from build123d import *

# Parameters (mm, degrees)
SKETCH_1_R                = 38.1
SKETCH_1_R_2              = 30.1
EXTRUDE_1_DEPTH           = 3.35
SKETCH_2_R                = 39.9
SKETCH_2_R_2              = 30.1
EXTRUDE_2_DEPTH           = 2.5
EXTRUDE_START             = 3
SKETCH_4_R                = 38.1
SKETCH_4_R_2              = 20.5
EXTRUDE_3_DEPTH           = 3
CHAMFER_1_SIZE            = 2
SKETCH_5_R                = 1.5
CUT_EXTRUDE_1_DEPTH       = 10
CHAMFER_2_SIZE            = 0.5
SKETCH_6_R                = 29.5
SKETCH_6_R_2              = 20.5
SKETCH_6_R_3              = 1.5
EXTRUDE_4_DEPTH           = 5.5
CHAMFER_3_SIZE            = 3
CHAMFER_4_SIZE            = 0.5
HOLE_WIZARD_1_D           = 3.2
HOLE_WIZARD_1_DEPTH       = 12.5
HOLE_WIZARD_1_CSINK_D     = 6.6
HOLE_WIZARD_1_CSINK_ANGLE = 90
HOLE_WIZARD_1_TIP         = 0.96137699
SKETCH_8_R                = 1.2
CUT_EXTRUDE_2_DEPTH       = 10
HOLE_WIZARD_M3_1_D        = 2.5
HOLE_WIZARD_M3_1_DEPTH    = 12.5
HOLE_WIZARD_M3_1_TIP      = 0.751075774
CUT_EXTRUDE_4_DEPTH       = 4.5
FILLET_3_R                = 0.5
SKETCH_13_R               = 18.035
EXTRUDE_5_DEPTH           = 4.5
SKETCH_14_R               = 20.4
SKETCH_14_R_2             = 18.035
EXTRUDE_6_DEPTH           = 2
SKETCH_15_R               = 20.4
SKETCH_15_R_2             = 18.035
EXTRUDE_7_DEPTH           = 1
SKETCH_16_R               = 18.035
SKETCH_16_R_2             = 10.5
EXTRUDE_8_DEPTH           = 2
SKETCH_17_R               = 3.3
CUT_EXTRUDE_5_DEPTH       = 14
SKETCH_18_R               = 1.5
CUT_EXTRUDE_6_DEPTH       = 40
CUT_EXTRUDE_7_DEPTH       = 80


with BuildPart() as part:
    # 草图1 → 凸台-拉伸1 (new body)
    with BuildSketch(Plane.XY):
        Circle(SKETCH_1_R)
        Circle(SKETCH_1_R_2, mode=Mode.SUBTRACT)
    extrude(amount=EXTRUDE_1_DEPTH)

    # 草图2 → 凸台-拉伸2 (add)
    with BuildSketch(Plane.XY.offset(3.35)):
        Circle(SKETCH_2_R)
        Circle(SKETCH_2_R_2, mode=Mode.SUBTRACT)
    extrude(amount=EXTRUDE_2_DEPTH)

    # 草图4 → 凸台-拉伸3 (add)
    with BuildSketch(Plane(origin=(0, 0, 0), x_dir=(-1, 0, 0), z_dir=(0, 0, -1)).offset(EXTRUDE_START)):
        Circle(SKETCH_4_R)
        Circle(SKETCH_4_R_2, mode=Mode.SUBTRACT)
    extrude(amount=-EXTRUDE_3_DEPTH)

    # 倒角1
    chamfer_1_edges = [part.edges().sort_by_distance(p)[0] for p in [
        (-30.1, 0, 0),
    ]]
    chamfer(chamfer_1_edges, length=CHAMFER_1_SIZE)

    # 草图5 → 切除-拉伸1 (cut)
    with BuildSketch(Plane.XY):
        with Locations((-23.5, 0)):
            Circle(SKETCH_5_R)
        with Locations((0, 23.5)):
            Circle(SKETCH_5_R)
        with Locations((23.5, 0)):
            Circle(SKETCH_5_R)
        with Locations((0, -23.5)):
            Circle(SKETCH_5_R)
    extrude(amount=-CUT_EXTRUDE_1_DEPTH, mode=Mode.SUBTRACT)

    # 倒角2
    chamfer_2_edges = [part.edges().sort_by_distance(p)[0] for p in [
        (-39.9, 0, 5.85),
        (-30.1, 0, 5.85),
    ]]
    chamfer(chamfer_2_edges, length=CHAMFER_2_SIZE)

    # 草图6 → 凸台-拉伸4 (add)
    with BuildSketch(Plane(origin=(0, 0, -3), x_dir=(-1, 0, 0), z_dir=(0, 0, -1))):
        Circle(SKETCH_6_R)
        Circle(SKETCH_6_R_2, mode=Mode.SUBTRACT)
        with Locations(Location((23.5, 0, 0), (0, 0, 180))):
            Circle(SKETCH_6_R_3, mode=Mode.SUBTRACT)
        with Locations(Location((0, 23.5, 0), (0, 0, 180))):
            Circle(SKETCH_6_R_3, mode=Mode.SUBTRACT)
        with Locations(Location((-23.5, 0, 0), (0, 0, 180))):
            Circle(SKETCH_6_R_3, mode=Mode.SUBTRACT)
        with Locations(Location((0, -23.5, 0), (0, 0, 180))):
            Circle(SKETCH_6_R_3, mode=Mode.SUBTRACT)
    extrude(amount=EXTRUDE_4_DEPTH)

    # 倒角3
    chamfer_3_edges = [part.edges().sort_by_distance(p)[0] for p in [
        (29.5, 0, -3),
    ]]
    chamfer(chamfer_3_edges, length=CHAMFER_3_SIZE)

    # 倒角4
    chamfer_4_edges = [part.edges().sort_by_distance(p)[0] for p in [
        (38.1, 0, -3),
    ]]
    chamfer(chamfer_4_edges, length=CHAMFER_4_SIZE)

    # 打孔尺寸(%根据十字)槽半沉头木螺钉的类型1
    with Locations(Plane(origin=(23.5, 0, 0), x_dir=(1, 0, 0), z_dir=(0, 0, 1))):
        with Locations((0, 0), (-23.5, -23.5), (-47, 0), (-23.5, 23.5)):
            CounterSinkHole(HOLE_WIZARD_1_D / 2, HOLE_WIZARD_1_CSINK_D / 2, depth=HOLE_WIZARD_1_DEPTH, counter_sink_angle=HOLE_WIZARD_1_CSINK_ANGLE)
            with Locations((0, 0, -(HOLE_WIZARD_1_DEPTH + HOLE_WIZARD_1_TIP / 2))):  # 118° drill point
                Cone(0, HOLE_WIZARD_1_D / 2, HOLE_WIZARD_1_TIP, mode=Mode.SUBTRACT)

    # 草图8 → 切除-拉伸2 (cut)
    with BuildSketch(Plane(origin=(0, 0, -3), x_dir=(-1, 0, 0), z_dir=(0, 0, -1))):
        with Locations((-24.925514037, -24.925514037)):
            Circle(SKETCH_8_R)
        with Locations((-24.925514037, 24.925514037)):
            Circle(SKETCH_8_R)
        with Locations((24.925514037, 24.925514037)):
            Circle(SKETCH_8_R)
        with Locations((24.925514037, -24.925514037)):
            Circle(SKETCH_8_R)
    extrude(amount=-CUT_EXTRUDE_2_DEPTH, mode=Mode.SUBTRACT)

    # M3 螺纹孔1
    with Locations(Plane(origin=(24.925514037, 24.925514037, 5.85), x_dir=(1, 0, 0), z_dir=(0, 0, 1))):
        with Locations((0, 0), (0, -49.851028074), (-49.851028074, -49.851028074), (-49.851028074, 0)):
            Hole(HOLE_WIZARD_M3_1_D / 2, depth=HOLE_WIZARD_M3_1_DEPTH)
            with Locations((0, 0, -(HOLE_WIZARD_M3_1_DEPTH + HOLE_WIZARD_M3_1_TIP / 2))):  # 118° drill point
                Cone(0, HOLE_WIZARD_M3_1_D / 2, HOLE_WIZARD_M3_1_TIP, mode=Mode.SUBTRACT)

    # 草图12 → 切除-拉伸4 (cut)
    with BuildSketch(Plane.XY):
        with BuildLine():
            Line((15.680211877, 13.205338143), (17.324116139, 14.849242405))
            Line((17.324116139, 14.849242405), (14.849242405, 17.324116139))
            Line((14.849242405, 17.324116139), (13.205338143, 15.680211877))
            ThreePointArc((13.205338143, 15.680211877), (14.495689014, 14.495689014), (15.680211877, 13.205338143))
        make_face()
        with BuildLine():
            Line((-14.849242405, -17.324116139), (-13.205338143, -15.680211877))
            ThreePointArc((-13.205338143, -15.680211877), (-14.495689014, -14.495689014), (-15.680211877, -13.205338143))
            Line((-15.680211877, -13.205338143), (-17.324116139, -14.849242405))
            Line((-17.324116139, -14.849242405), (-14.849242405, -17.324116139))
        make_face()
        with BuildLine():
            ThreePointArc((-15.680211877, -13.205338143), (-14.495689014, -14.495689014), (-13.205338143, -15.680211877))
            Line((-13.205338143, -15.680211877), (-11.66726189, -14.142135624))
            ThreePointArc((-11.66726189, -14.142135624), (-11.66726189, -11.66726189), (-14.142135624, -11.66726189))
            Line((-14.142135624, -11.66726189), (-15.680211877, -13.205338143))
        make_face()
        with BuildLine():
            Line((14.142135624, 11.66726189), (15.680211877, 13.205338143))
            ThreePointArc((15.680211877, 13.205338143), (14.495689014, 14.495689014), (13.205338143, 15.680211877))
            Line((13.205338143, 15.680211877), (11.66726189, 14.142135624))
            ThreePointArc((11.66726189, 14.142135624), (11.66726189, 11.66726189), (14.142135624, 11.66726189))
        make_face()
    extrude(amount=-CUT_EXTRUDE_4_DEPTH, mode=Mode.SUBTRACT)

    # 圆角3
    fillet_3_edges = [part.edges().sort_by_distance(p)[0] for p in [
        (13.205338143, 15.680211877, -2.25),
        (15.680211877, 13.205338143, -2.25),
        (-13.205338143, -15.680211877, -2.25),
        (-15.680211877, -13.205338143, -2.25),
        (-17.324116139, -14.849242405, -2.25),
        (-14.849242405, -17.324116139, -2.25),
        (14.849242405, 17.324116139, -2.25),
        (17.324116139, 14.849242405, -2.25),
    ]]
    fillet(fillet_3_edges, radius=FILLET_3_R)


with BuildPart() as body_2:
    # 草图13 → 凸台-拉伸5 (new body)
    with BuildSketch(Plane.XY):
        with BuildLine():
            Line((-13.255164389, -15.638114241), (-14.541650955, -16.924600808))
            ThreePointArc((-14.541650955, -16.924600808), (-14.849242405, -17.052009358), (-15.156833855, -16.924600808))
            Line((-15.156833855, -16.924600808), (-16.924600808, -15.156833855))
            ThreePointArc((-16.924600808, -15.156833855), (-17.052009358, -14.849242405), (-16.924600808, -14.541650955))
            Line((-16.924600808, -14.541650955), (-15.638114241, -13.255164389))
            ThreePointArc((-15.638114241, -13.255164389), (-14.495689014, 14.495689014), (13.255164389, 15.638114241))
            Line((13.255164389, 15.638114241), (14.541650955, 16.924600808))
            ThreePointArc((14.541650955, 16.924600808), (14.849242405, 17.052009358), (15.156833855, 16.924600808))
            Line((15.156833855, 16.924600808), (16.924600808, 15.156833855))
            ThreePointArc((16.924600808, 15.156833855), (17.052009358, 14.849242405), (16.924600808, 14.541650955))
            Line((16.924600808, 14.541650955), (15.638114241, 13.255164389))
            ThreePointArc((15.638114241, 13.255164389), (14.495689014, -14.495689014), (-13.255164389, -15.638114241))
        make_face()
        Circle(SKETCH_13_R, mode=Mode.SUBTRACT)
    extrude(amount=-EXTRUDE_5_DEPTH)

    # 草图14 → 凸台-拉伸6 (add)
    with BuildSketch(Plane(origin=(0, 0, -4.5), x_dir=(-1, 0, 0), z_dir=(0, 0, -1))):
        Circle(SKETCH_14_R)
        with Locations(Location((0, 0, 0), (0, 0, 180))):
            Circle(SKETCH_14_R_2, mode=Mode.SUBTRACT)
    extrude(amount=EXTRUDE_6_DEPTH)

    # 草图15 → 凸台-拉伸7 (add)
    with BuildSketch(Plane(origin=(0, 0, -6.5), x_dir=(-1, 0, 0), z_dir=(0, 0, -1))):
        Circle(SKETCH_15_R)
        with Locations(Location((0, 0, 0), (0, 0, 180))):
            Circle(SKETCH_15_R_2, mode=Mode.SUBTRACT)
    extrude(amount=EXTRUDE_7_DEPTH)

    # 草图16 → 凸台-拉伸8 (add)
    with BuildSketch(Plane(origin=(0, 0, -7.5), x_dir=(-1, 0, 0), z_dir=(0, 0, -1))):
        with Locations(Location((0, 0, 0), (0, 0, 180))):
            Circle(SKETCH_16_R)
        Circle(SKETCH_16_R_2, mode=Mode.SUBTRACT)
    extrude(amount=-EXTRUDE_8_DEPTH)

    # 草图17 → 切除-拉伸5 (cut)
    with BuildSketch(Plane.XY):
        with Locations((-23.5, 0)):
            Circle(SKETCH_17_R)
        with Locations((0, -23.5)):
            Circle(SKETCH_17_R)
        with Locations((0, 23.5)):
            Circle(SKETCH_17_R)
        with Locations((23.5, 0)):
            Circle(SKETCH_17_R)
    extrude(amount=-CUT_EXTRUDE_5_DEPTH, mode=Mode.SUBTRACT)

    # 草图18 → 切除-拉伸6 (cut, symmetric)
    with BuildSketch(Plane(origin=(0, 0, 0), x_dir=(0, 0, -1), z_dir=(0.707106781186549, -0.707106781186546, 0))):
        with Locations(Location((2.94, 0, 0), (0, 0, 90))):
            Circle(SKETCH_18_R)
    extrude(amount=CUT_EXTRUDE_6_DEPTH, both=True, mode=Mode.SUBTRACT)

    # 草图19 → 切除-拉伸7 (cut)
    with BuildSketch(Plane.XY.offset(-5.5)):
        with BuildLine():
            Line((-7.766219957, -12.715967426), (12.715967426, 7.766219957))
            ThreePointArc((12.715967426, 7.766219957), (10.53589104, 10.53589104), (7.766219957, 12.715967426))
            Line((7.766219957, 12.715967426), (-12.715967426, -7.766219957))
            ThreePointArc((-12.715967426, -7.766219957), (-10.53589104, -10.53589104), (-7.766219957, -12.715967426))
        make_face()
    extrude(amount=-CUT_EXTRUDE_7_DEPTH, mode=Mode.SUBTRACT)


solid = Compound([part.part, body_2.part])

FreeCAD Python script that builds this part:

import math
import FreeCAD as App
import Part
import Sketcher
from FreeCAD import Vector
Q = App.Units.Quantity


def edges_at(feature, points):
    """Names of the edges that pass closest to the given points."""
    edges = feature.Shape.Edges
    near = lambda p: min(range(len(edges)), key=lambda i: edges[i].distToShape(Part.Vertex(*p))[0])
    return sorted({f"Edge{near(p) + 1}" for p in points})

doc = App.newDocument("Part")
params = doc.addObject("Spreadsheet::Sheet", "Params")
for row, (alias, value) in enumerate([
    ("sketch1_diameter", "76.2 mm"),
    ("sketch1_diameter2", "60.2 mm"),
    ("pad1_length", "3.35 mm"),
    ("sketch2_diameter", "79.8 mm"),
    ("sketch2_diameter2", "60.2 mm"),
    ("pad2_length", "2.5 mm"),
    ("sketch3_diameter", "41 mm"),
    ("sketch3_diameter2", "76.2 mm"),
    ("pad3_length", "3 mm"),
    ("chamfer_size", "2 mm"),
    ("sketch4_diameter", "3 mm"),
    ("pocket1_length", "10 mm"),
    ("chamfer2_size", "0.5 mm"),
    ("sketch5_diameter", "59 mm"),
    ("sketch5_diameter2", "3 mm"),
    ("sketch5_diameter3", "41 mm"),
    ("pad4_length", "5.5 mm"),
    ("chamfer3_size", "3 mm"),
    ("chamfer4_size", "0.5 mm"),
    ("sketch6_diameter", "3.2 mm"),
    ("hole_diameter", "3.2 mm"),
    ("hole_depth", "12.5 mm"),
    ("hole_csink_diameter", "6.6 mm"),
    ("sketch7_diameter", "2.4 mm"),
    ("pocket2_length", "10 mm"),
    ("sketch8_diameter", "2.5 mm"),
    ("hole2_diameter", "2.5 mm"),
    ("hole2_depth", "12.5 mm"),
    ("sketch9_radius", "1.75 mm"),
    ("sketch9_length", "4.5 mm"),
    ("pocket3_length", "4.5 mm"),
    ("fillet_radius", "0.5 mm"),
    ("sketch10_radius", "20.5 mm"),
    ("sketch10_diameter", "36.07 mm"),
    ("sketch10_length", "2.5 mm"),
    ("pad5_length", "4.5 mm"),
    ("sketch11_diameter", "40.8 mm"),
    ("sketch11_diameter2", "36.07 mm"),
    ("pad6_length", "2 mm"),
    ("sketch12_diameter", "40.8 mm"),
    ("sketch12_diameter2", "36.07 mm"),
    ("pad7_length", "1 mm"),
    ("sketch13_diameter", "21 mm"),
    ("sketch13_diameter2", "36.07 mm"),
    ("pad8_length", "2 mm"),
    ("sketch14_diameter", "6.6 mm"),
    ("pocket4_length", "14 mm"),
    ("sketch15_diameter", "3 mm"),
    ("pocket5_length", "80 mm"),
    ("sketch16_radius", "14.9 mm"),
    ("pocket6_length", "80 mm"),
], start=1):
    params.set(f"A{row}", alias)
    params.set(f"B{row}", "=" + value)
    params.setAlias(f"B{row}", alias)

body = doc.addObject("PartDesign::Body", "Body")

# Sketch on XY plane
sketch1 = doc.addObject("Sketcher::SketchObject", "Sketch")
body.addObject(sketch1)
sketch1.AttachmentSupport = (doc.XY_Plane, [""])
sketch1.MapMode = "FlatFace"
sketch1.addGeometry(Part.Circle(Vector(0, 0, 0), Vector(0, 0, 1), 38), False)
sketch1.addGeometry(Part.Circle(Vector(0, 0, 0), Vector(0, 0, 1), 30), False)
sketch1.addConstraint(Sketcher.Constraint("Coincident", 0, 3, -1, 1))
sketch1.addConstraint(Sketcher.Constraint("Coincident", 1, 3, -1, 1))
sketch1.addConstraint(Sketcher.Constraint("Diameter", 0, Q("76.2 mm")))
sketch1.addConstraint(Sketcher.Constraint("Diameter", 1, Q("60.2 mm")))
sketch1.setExpression("Constraints[2]", "Params.sketch1_diameter")
sketch1.setExpression("Constraints[3]", "Params.sketch1_diameter2")
pad1 = doc.addObject("PartDesign::Pad", "Pad")
body.addObject(pad1)
pad1.Profile = sketch1
pad1.setExpression("Length", "Params.pad1_length")

# Sketch on XY plane
sketch2 = doc.addObject("Sketcher::SketchObject", "Sketch001")
body.addObject(sketch2)
sketch2.AttachmentSupport = (doc.XY_Plane, [""])
sketch2.MapMode = "FlatFace"
sketch2.AttachmentOffset = App.Placement(Vector(0, 0, 3.35), App.Rotation())
sketch2.addGeometry(Part.Circle(Vector(0, 0, 0), Vector(0, 0, 1), 40), False)
sketch2.addGeometry(Part.Circle(Vector(0, 0, 0), Vector(0, 0, 1), 30), False)
sketch2.addConstraint(Sketcher.Constraint("Coincident", 0, 3, -1, 1))
sketch2.addConstraint(Sketcher.Constraint("Coincident", 1, 3, -1, 1))
sketch2.addConstraint(Sketcher.Constraint("Diameter", 0, Q("79.8 mm")))
sketch2.addConstraint(Sketcher.Constraint("Diameter", 1, Q("60.2 mm")))
sketch2.setExpression("Constraints[2]", "Params.sketch2_diameter")
sketch2.setExpression("Constraints[3]", "Params.sketch2_diameter2")
pad2 = doc.addObject("PartDesign::Pad", "Pad001")
body.addObject(pad2)
pad2.Profile = sketch2
pad2.setExpression("Length", "Params.pad2_length")

# Sketch on XY plane
sketch3 = doc.addObject("Sketcher::SketchObject", "Sketch002")
body.addObject(sketch3)
sketch3.AttachmentSupport = (doc.XY_Plane, [""])
sketch3.MapMode = "FlatFace"
sketch3.AttachmentOffset = App.Placement(Vector(0, 0, -3), App.Rotation())
sketch3.addGeometry(Part.Circle(Vector(0, 0, 0), Vector(0, 0, 1), 38), False)
sketch3.addGeometry(Part.Circle(Vector(0, 0, 0), Vector(0, 0, 1), 20), False)
sketch3.addConstraint(Sketcher.Constraint("Coincident", 0, 3, -1, 1))
sketch3.addConstraint(Sketcher.Constraint("Coincident", 1, 3, -1, 1))
sketch3.addConstraint(Sketcher.Constraint("Diameter", 1, Q("41 mm")))
sketch3.addConstraint(Sketcher.Constraint("Diameter", 0, Q("76.2 mm")))
sketch3.setExpression("Constraints[2]", "Params.sketch3_diameter")
sketch3.setExpression("Constraints[3]", "Params.sketch3_diameter2")
pad3 = doc.addObject("PartDesign::Pad", "Pad002")
body.addObject(pad3)
pad3.Profile = sketch3
pad3.setExpression("Length", "Params.pad3_length")
doc.recompute()

chamfer = doc.addObject("PartDesign::Chamfer", "Chamfer")
body.addObject(chamfer)
chamfer.Base = (pad3, edges_at(pad3, [(-30.1, 0, 0)]))
chamfer.setExpression("Size", "Params.chamfer_size")

# Sketch on XY plane
sketch4 = doc.addObject("Sketcher::SketchObject", "Sketch003")
body.addObject(sketch4)
sketch4.AttachmentSupport = (doc.XY_Plane, [""])
sketch4.MapMode = "FlatFace"
sketch4.addGeometry(Part.Circle(Vector(-23.5, 0, 0), Vector(0, 0, 1), 1.5), False)
sketch4.addGeometry(Part.Circle(Vector(0, 23.5, 0), Vector(0, 0, 1), 1.5), False)
sketch4.addGeometry(Part.Circle(Vector(23.5, 0, 0), Vector(0, 0, 1), 1.5), False)
sketch4.addGeometry(Part.Circle(Vector(0, -23.5, 0), Vector(0, 0, 1), 1.5), False)
sketch4.addConstraint(Sketcher.Constraint("Equal", 0, 1))
sketch4.addConstraint(Sketcher.Constraint("Equal", 1, 2))
sketch4.addConstraint(Sketcher.Constraint("Equal", 2, 3))
sketch4.addConstraint(Sketcher.Constraint("Symmetric", 0, 3, 2, 3, -1, 1))
sketch4.addConstraint(Sketcher.Constraint("Symmetric", 1, 3, 3, 3, -1, 1))
sketch4.addConstraint(Sketcher.Constraint("PointOnObject", 0, 3, -1))
sketch4.addConstraint(Sketcher.Constraint("PointOnObject", 1, 3, -2))
sketch4.addConstraint(Sketcher.Constraint("Diameter", 0, Q("3 mm")))
sketch4.addConstraint(Sketcher.Constraint("DistanceX", 0, 3, 2, 3, Q("47 mm")))
sketch4.addConstraint(Sketcher.Constraint("DistanceY", 3, 3, 1, 3, Q("47 mm")))
sketch4.setExpression("Constraints[7]", "Params.sketch4_diameter")
pocket1 = doc.addObject("PartDesign::Pocket", "Pocket")
body.addObject(pocket1)
pocket1.Profile = sketch4
pocket1.setExpression("Length", "Params.pocket1_length")
doc.recompute()

chamfer2 = doc.addObject("PartDesign::Chamfer", "Chamfer001")
body.addObject(chamfer2)
chamfer2.Base = (pocket1, edges_at(pocket1, [(-39.9, 0, 5.85), (-30.1, 0, 5.85)]))
chamfer2.setExpression("Size", "Params.chamfer2_size")

# Sketch on XY plane
sketch5 = doc.addObject("Sketcher::SketchObject", "Sketch004")
body.addObject(sketch5)
sketch5.AttachmentSupport = (doc.XY_Plane, [""])
sketch5.MapMode = "FlatFace"
sketch5.AttachmentOffset = App.Placement(Vector(0, 0, -3), App.Rotation())
sketch5.addGeometry(Part.Circle(Vector(0, 0, 0), Vector(0, 0, 1), 29.5), False)
sketch5.addGeometry(Part.Circle(Vector(0, -23.5, 0), Vector(0, 0, 1), 1.5), False)
sketch5.addGeometry(Part.Circle(Vector(23.5, 0, 0), Vector(0, 0, 1), 1.5), False)
sketch5.addGeometry(Part.Circle(Vector(0, 0, 0), Vector(0, 0, 1), 20.5), False)
sketch5.addGeometry(Part.Circle(Vector(-23.5, 0, 0), Vector(0, 0, 1), 1.5), False)
sketch5.addGeometry(Part.Circle(Vector(0, 23.5, 0), Vector(0, 0, 1), 1.5), False)
sketch5.addConstraint(Sketcher.Constraint("Coincident", 0, 3, -1, 1))
sketch5.addConstraint(Sketcher.Constraint("Coincident", 3, 3, -1, 1))
sketch5.addConstraint(Sketcher.Constraint("Equal", 1, 2))
sketch5.addConstraint(Sketcher.Constraint("Equal", 2, 4))
sketch5.addConstraint(Sketcher.Constraint("Equal", 4, 5))
sketch5.addConstraint(Sketcher.Constraint("Symmetric", 2, 3, 4, 3, -1, 1))
sketch5.addConstraint(Sketcher.Constraint("Symmetric", 1, 3, 5, 3, -1, 1))
sketch5.addConstraint(Sketcher.Constraint("PointOnObject", 1, 3, -2))
sketch5.addConstraint(Sketcher.Constraint("PointOnObject", 2, 3, -1))
sketch5.addConstraint(Sketcher.Constraint("Diameter", 0, Q("59 mm")))
sketch5.addConstraint(Sketcher.Constraint("Diameter", 1, Q("3 mm")))
sketch5.addConstraint(Sketcher.Constraint("Diameter", 3, Q("41 mm")))
sketch5.addConstraint(Sketcher.Constraint("DistanceX", 4, 3, 2, 3, Q("47 mm")))
sketch5.addConstraint(Sketcher.Constraint("DistanceY", 1, 3, 5, 3, Q("47 mm")))
sketch5.setExpression("Constraints[9]", "Params.sketch5_diameter")
sketch5.setExpression("Constraints[10]", "Params.sketch5_diameter2")
sketch5.setExpression("Constraints[11]", "Params.sketch5_diameter3")
pad4 = doc.addObject("PartDesign::Pad", "Pad003")
body.addObject(pad4)
pad4.Profile = sketch5
pad4.setExpression("Length", "Params.pad4_length")
pad4.Reversed = True
doc.recompute()

chamfer3 = doc.addObject("PartDesign::Chamfer", "Chamfer002")
body.addObject(chamfer3)
chamfer3.Base = (pad4, edges_at(pad4, [(29.5, 0, -3)]))
chamfer3.setExpression("Size", "Params.chamfer3_size")
doc.recompute()

chamfer4 = doc.addObject("PartDesign::Chamfer", "Chamfer003")
body.addObject(chamfer4)
chamfer4.Base = (chamfer3, edges_at(chamfer3, [(38.1, 0, -3)]))
chamfer4.setExpression("Size", "Params.chamfer4_size")

# Sketch on XY plane
sketch6 = doc.addObject("Sketcher::SketchObject", "Sketch005")
body.addObject(sketch6)
sketch6.AttachmentSupport = (doc.XY_Plane, [""])
sketch6.MapMode = "FlatFace"
sketch6.addGeometry(Part.Circle(Vector(23.5, 0, 0), Vector(0, 0, 1), 1.6), False)
sketch6.addGeometry(Part.Circle(Vector(0, -23.5, 0), Vector(0, 0, 1), 1.6), False)
sketch6.addGeometry(Part.Circle(Vector(-23.5, 0, 0), Vector(0, 0, 1), 1.6), False)
sketch6.addGeometry(Part.Circle(Vector(0, 23.5, 0), Vector(0, 0, 1), 1.6), False)
sketch6.addConstraint(Sketcher.Constraint("Equal", 0, 1))
sketch6.addConstraint(Sketcher.Constraint("Equal", 1, 2))
sketch6.addConstraint(Sketcher.Constraint("Equal", 2, 3))
sketch6.addConstraint(Sketcher.Constraint("Symmetric", 0, 3, 2, 3, -1, 1))
sketch6.addConstraint(Sketcher.Constraint("Symmetric", 1, 3, 3, 3, -1, 1))
sketch6.addConstraint(Sketcher.Constraint("PointOnObject", 0, 3, -1))
sketch6.addConstraint(Sketcher.Constraint("PointOnObject", 1, 3, -2))
sketch6.addConstraint(Sketcher.Constraint("Diameter", 0, Q("3.2 mm")))
sketch6.addConstraint(Sketcher.Constraint("DistanceX", 2, 3, 0, 3, Q("47 mm")))
sketch6.addConstraint(Sketcher.Constraint("DistanceY", 1, 3, 3, 3, Q("47 mm")))
sketch6.setExpression("Constraints[7]", "Params.sketch6_diameter")
doc.recompute()
hole = doc.addObject("PartDesign::Hole", "Hole")
body.addObject(hole)
hole.Profile = sketch6
hole.ThreadType = "None"
hole.setExpression("Diameter", "Params.hole_diameter")
hole.DepthType = "Dimension"
hole.setExpression("Depth", "Params.hole_depth")
hole.DrillPoint = "Angled"
hole.DrillPointAngle = 118
hole.HoleCutType = "Countersink"
hole.setExpression("HoleCutDiameter", "Params.hole_csink_diameter")
hole.HoleCutCountersinkAngle = 90

# Sketch on XY plane
sketch7 = doc.addObject("Sketcher::SketchObject", "Sketch006")
body.addObject(sketch7)
sketch7.AttachmentSupport = (doc.XY_Plane, [""])
sketch7.MapMode = "FlatFace"
sketch7.AttachmentOffset = App.Placement(Vector(0, 0, -3), App.Rotation())
sketch7.addGeometry(Part.Circle(Vector(24.9, -24.9, 0), Vector(0, 0, 1), 1.2), False)
sketch7.addGeometry(Part.Circle(Vector(24.9, 24.9, 0), Vector(0, 0, 1), 1.2), False)
sketch7.addGeometry(Part.Circle(Vector(-24.9, 24.9, 0), Vector(0, 0, 1), 1.2), False)
sketch7.addGeometry(Part.Circle(Vector(-24.9, -24.9, 0), Vector(0, 0, 1), 1.2), False)
sketch7.addConstraint(Sketcher.Constraint("Equal", 0, 1))
sketch7.addConstraint(Sketcher.Constraint("Equal", 1, 2))
sketch7.addConstraint(Sketcher.Constraint("Equal", 2, 3))
sketch7.addConstraint(Sketcher.Constraint("Symmetric", 0, 3, 2, 3, -1, 1))
sketch7.addConstraint(Sketcher.Constraint("Symmetric", 1, 3, 3, 3, -1, 1))
sketch7.addConstraint(Sketcher.Constraint("Symmetric", 1, 3, 2, 3, -2))
sketch7.addConstraint(Sketcher.Constraint("Diameter", 0, Q("2.4 mm")))
sketch7.addConstraint(Sketcher.Constraint("DistanceY", 0, 3, 1, 3, Q("49.851028 mm")))
sketch7.addConstraint(Sketcher.Constraint("DistanceX", 2, 3, 1, 3, Q("49.851028 mm")))
sketch7.setExpression("Constraints[6]", "Params.sketch7_diameter")
pocket2 = doc.addObject("PartDesign::Pocket", "Pocket001")
body.addObject(pocket2)
pocket2.Profile = sketch7
pocket2.setExpression("Length", "Params.pocket2_length")
pocket2.Reversed = True

# Sketch on XY plane
sketch8 = doc.addObject("Sketcher::SketchObject", "Sketch007")
body.addObject(sketch8)
sketch8.AttachmentSupport = (doc.XY_Plane, [""])
sketch8.MapMode = "FlatFace"
sketch8.AttachmentOffset = App.Placement(Vector(0, 0, 5.85), App.Rotation())
sketch8.addGeometry(Part.Circle(Vector(24.9, 24.9, 0), Vector(0, 0, 1), 1.2), False)
sketch8.addGeometry(Part.Circle(Vector(24.9, -24.9, 0), Vector(0, 0, 1), 1.2), False)
sketch8.addGeometry(Part.Circle(Vector(-24.9, -24.9, 0), Vector(0, 0, 1), 1.2), False)
sketch8.addGeometry(Part.Circle(Vector(-24.9, 24.9, 0), Vector(0, 0, 1), 1.2), False)
sketch8.addConstraint(Sketcher.Constraint("Equal", 0, 1))
sketch8.addConstraint(Sketcher.Constraint("Equal", 1, 2))
sketch8.addConstraint(Sketcher.Constraint("Equal", 2, 3))
sketch8.addConstraint(Sketcher.Constraint("Symmetric", 0, 3, 2, 3, -1, 1))
sketch8.addConstraint(Sketcher.Constraint("Symmetric", 1, 3, 3, 3, -1, 1))
sketch8.addConstraint(Sketcher.Constraint("Symmetric", 1, 3, 2, 3, -2))
sketch8.addConstraint(Sketcher.Constraint("Diameter", 0, Q("2.5 mm")))
sketch8.addConstraint(Sketcher.Constraint("DistanceY", 1, 3, 0, 3, Q("49.851028 mm")))
sketch8.addConstraint(Sketcher.Constraint("DistanceX", 2, 3, 1, 3, Q("49.851028 mm")))
sketch8.setExpression("Constraints[6]", "Params.sketch8_diameter")
doc.recompute()
hole2 = doc.addObject("PartDesign::Hole", "Hole001")
body.addObject(hole2)
hole2.Profile = sketch8
hole2.ThreadType = "None"
hole2.setExpression("Diameter", "Params.hole2_diameter")
hole2.DepthType = "Dimension"
hole2.setExpression("Depth", "Params.hole2_depth")
hole2.DrillPoint = "Angled"
hole2.DrillPointAngle = 118

# Sketch on XY plane
sketch9 = doc.addObject("Sketcher::SketchObject", "Sketch008")
body.addObject(sketch9)
sketch9.AttachmentSupport = (doc.XY_Plane, [""])
sketch9.MapMode = "FlatFace"
sketch9.addGeometry(Part.LineSegment(Vector(17.3, 14.8, 0), Vector(14.8, 17.3, 0)), False)
sketch9.addGeometry(Part.LineSegment(Vector(14.8, 17.3, 0), Vector(11.7, 14.1, 0)), False)
sketch9.addGeometry(Part.ArcOfCircle(Part.Circle(Vector(12.9, 12.9, 0), Vector(0, 0, 1), 1.8), math.radians(135), math.radians(315)), False)
sketch9.addGeometry(Part.LineSegment(Vector(14.1, 11.7, 0), Vector(17.3, 14.8, 0)), False)
sketch9.addGeometry(Part.LineSegment(Vector(-14.8, -17.3, 0), Vector(-11.7, -14.1, 0)), False)
sketch9.addGeometry(Part.ArcOfCircle(Part.Circle(Vector(-12.9, -12.9, 0), Vector(0, 0, 1), 1.8), math.radians(-45), math.radians(135)), False)
sketch9.addGeometry(Part.LineSegment(Vector(-14.1, -11.7, 0), Vector(-17.3, -14.8, 0)), False)
sketch9.addGeometry(Part.LineSegment(Vector(-17.3, -14.8, 0), Vector(-14.8, -17.3, 0)), False)
sketch9.addConstraint(Sketcher.Constraint("Coincident", 0, 2, 1, 1))
sketch9.addConstraint(Sketcher.Constraint("Tangent", 1, 2, 2, 1))
sketch9.addConstraint(Sketcher.Constraint("Tangent", 2, 2, 3, 1))
sketch9.addConstraint(Sketcher.Constraint("Coincident", 3, 2, 0, 1))
sketch9.addConstraint(Sketcher.Constraint("Tangent", 4, 2, 5, 1))
sketch9.addConstraint(Sketcher.Constraint("Tangent", 5, 2, 6, 1))
sketch9.addConstraint(Sketcher.Constraint("Coincident", 6, 2, 7, 1))
sketch9.addConstraint(Sketcher.Constraint("Coincident", 7, 2, 4, 1))
sketch9.addConstraint(Sketcher.Constraint("Equal", 2, 5))
sketch9.addConstraint(Sketcher.Constraint("Symmetric", 2, 3, 5, 3, -1, 1))
sketch9.addConstraint(Sketcher.Constraint("Symmetric", 3, 2, 6, 2, -1, 1))
sketch9.addConstraint(Sketcher.Constraint("Symmetric", 0, 2, 7, 2, -1, 1))
sketch9.addConstraint(Sketcher.Constraint("Perpendicular", 0, 1))
sketch9.addConstraint(Sketcher.Constraint("Parallel", 1, 3))
sketch9.addConstraint(Sketcher.Constraint("Angle", 0, Q("135 deg")))
sketch9.addConstraint(Sketcher.Constraint("Radius", 2, Q("1.75 mm")))
sketch9.addConstraint(Sketcher.Constraint("Distance", 1, Q("4.5 mm")))
sketch9.addConstraint(Sketcher.Constraint("DistanceX", -1, 1, 2, 3, Q("12.904699 mm")))
sketch9.addConstraint(Sketcher.Constraint("DistanceY", -1, 1, 2, 3, Q("12.904699 mm")))
sketch9.setExpression("Constraints[15]", "Params.sketch9_radius")
sketch9.setExpression("Constraints[16]", "Params.sketch9_length")
pocket3 = doc.addObject("PartDesign::Pocket", "Pocket002")
body.addObject(pocket3)
pocket3.Profile = sketch9
pocket3.setExpression("Length", "Params.pocket3_length")
doc.recompute()

fillet = doc.addObject("PartDesign::Fillet", "Fillet")
body.addObject(fillet)
fillet.Base = (pocket3, edges_at(pocket3, [
    (13.205, 15.68, -2.25),
    (15.68, 13.205, -2.25),
    (-13.205, -15.68, -2.25),
    (-15.68, -13.205, -2.25),
    (-17.324, -14.849, -2.25),
    (-14.849, -17.324, -2.25),
    (14.849, 17.324, -2.25),
    (17.324, 14.849, -2.25),
]))
fillet.setExpression("Radius", "Params.fillet_radius")
body2 = doc.addObject("PartDesign::Body", "Body001")

# Sketch on XY plane
sketch10 = doc.addObject("Sketcher::SketchObject", "Sketch009")
body2.addObject(sketch10)
sketch10.AttachmentSupport = (doc.getObject("XY_Plane001"), [""])
sketch10.MapMode = "FlatFace"
sketch10.addGeometry(Part.LineSegment(Vector(-14.54, -16.92, 0), Vector(-13.26, -15.64, 0)), False)
sketch10.addGeometry(Part.ArcOfCircle(Part.Circle(Vector(0, 0, 0), Vector(0, 0, 1), 20.5), math.radians(-130), math.radians(40)), False)
sketch10.addGeometry(Part.LineSegment(Vector(15.64, 13.26, 0), Vector(16.92, 14.54, 0)), False)
sketch10.addGeometry(Part.ArcOfCircle(Part.Circle(Vector(16.62, 14.85, 0), Vector(0, 0, 1), 0.44), math.radians(-45), math.radians(45)), False)
sketch10.addGeometry(Part.LineSegment(Vector(16.92, 15.16, 0), Vector(15.16, 16.92, 0)), False)
sketch10.addGeometry(Part.ArcOfCircle(Part.Circle(Vector(14.85, 16.62, 0), Vector(0, 0, 1), 0.44), math.radians(45), math.radians(135)), False)
sketch10.addGeometry(Part.LineSegment(Vector(14.54, 16.92, 0), Vector(13.26, 15.64, 0)), False)
sketch10.addGeometry(Part.ArcOfCircle(Part.Circle(Vector(0, 0, 0), Vector(0, 0, 1), 20.5), math.radians(50), math.radians(220)), False)
sketch10.addGeometry(Part.LineSegment(Vector(-15.64, -13.26, 0), Vector(-16.92, -14.54, 0)), False)
sketch10.addGeometry(Part.ArcOfCircle(Part.Circle(Vector(-16.62, -14.85, 0), Vector(0, 0, 1), 0.44), math.radians(135), math.radians(225)), False)
sketch10.addGeometry(Part.LineSegment(Vector(-16.92, -15.16, 0), Vector(-15.16, -16.92, 0)), False)
sketch10.addGeometry(Part.ArcOfCircle(Part.Circle(Vector(-14.85, -16.62, 0), Vector(0, 0, 1), 0.44), math.radians(-135), math.radians(-45)), False)
sketch10.addGeometry(Part.Circle(Vector(0, 0, 0), Vector(0, 0, 1), 18.04), False)
sketch10.addConstraint(Sketcher.Constraint("Coincident", 0, 2, 1, 1))
sketch10.addConstraint(Sketcher.Constraint("Coincident", 1, 2, 2, 1))
sketch10.addConstraint(Sketcher.Constraint("Tangent", 2, 2, 3, 1))
sketch10.addConstraint(Sketcher.Constraint("Tangent", 3, 2, 4, 1))
sketch10.addConstraint(Sketcher.Constraint("Tangent", 4, 2, 5, 1))
sketch10.addConstraint(Sketcher.Constraint("Tangent", 5, 2, 6, 1))
sketch10.addConstraint(Sketcher.Constraint("Coincident", 6, 2, 7, 1))
sketch10.addConstraint(Sketcher.Constraint("Coincident", 7, 2, 8, 1))
sketch10.addConstraint(Sketcher.Constraint("Tangent", 8, 2, 9, 1))
sketch10.addConstraint(Sketcher.Constraint("Tangent", 9, 2, 10, 1))
sketch10.addConstraint(Sketcher.Constraint("Tangent", 10, 2, 11, 1))
sketch10.addConstraint(Sketcher.Constraint("Tangent", 11, 2, 0, 1))
sketch10.addConstraint(Sketcher.Constraint("Coincident", 1, 3, -1, 1))
sketch10.addConstraint(Sketcher.Constraint("Coincident", 7, 3, -1, 1))
sketch10.addConstraint(Sketcher.Constraint("Coincident", 12, 3, -1, 1))
sketch10.addConstraint(Sketcher.Constraint("Equal", 3, 5))
sketch10.addConstraint(Sketcher.Constraint("Equal", 1, 7))
sketch10.addConstraint(Sketcher.Constraint("Equal", 5, 9))
sketch10.addConstraint(Sketcher.Constraint("Equal", 9, 11))
sketch10.addConstraint(Sketcher.Constraint("Symmetric", 3, 3, 9, 3, -1, 1))
sketch10.addConstraint(Sketcher.Constraint("Symmetric", 5, 3, 11, 3, -1, 1))
sketch10.addConstraint(Sketcher.Constraint("Parallel", 0, 2))
sketch10.addConstraint(Sketcher.Constraint("Perpendicular", 2, 4))
sketch10.addConstraint(Sketcher.Constraint("Perpendicular", 4, 6))
sketch10.addConstraint(Sketcher.Constraint("Parallel", 6, 8))
sketch10.addConstraint(Sketcher.Constraint("Horizontal", 4, 2, 5, 2))
sketch10.addConstraint(Sketcher.Constraint("Equal", 0, 2))
sketch10.addConstraint(Sketcher.Constraint("Radius", 1, Q("20.5 mm")))
sketch10.addConstraint(Sketcher.Constraint("Diameter", 12, Q("36.07 mm")))
sketch10.addConstraint(Sketcher.Constraint("Radius", 3, Q("0.435 mm")))
sketch10.addConstraint(Sketcher.Constraint("Distance", 4, Q("2.5 mm")))
sketch10.addConstraint(Sketcher.Constraint("DistanceX", -1, 1, 2, 2, Q("16.924601 mm")))
sketch10.setExpression("Constraints[27]", "Params.sketch10_radius")
sketch10.setExpression("Constraints[28]", "Params.sketch10_diameter")
sketch10.setExpression("Constraints[30]", "Params.sketch10_length")
pad5 = doc.addObject("PartDesign::Pad", "Pad004")
body2.addObject(pad5)
pad5.Profile = sketch10
pad5.setExpression("Length", "Params.pad5_length")
pad5.Reversed = True

# Sketch on XY plane
sketch11 = doc.addObject("Sketcher::SketchObject", "Sketch010")
body2.addObject(sketch11)
sketch11.AttachmentSupport = (doc.getObject("XY_Plane001"), [""])
sketch11.MapMode = "FlatFace"
sketch11.AttachmentOffset = App.Placement(Vector(0, 0, -4.5), App.Rotation())
sketch11.addGeometry(Part.Circle(Vector(0, 0, 0), Vector(0, 0, 1), 20), False)
sketch11.addGeometry(Part.Circle(Vector(0, 0, 0), Vector(0, 0, 1), 18), False)
sketch11.addConstraint(Sketcher.Constraint("Coincident", 0, 3, -1, 1))
sketch11.addConstraint(Sketcher.Constraint("Coincident", 1, 3, -1, 1))
sketch11.addConstraint(Sketcher.Constraint("Diameter", 0, Q("40.8 mm")))
sketch11.addConstraint(Sketcher.Constraint("Diameter", 1, Q("36.07 mm")))
sketch11.setExpression("Constraints[2]", "Params.sketch11_diameter")
sketch11.setExpression("Constraints[3]", "Params.sketch11_diameter2")
pad6 = doc.addObject("PartDesign::Pad", "Pad005")
body2.addObject(pad6)
pad6.Profile = sketch11
pad6.setExpression("Length", "Params.pad6_length")
pad6.Reversed = True

# Sketch on XY plane
sketch12 = doc.addObject("Sketcher::SketchObject", "Sketch011")
body2.addObject(sketch12)
sketch12.AttachmentSupport = (doc.getObject("XY_Plane001"), [""])
sketch12.MapMode = "FlatFace"
sketch12.AttachmentOffset = App.Placement(Vector(0, 0, -6.5), App.Rotation())
sketch12.addGeometry(Part.Circle(Vector(0, 0, 0), Vector(0, 0, 1), 20), False)
sketch12.addGeometry(Part.Circle(Vector(0, 0, 0), Vector(0, 0, 1), 18), False)
sketch12.addConstraint(Sketcher.Constraint("Coincident", 0, 3, -1, 1))
sketch12.addConstraint(Sketcher.Constraint("Coincident", 1, 3, -1, 1))
sketch12.addConstraint(Sketcher.Constraint("Diameter", 0, Q("40.8 mm")))
sketch12.addConstraint(Sketcher.Constraint("Diameter", 1, Q("36.07 mm")))
sketch12.setExpression("Constraints[2]", "Params.sketch12_diameter")
sketch12.setExpression("Constraints[3]", "Params.sketch12_diameter2")
pad7 = doc.addObject("PartDesign::Pad", "Pad006")
body2.addObject(pad7)
pad7.Profile = sketch12
pad7.setExpression("Length", "Params.pad7_length")
pad7.Reversed = True

# Sketch on XY plane
sketch13 = doc.addObject("Sketcher::SketchObject", "Sketch012")
body2.addObject(sketch13)
sketch13.AttachmentSupport = (doc.getObject("XY_Plane001"), [""])
sketch13.MapMode = "FlatFace"
sketch13.AttachmentOffset = App.Placement(Vector(0, 0, -7.5), App.Rotation())
sketch13.addGeometry(Part.Circle(Vector(0, 0, 0), Vector(0, 0, 1), 18), False)
sketch13.addGeometry(Part.Circle(Vector(0, 0, 0), Vector(0, 0, 1), 10), False)
sketch13.addConstraint(Sketcher.Constraint("Coincident", 0, 3, -1, 1))
sketch13.addConstraint(Sketcher.Constraint("Coincident", 1, 3, -1, 1))
sketch13.addConstraint(Sketcher.Constraint("Diameter", 1, Q("21 mm")))
sketch13.addConstraint(Sketcher.Constraint("Diameter", 0, Q("36.07 mm")))
sketch13.setExpression("Constraints[2]", "Params.sketch13_diameter")
sketch13.setExpression("Constraints[3]", "Params.sketch13_diameter2")
pad8 = doc.addObject("PartDesign::Pad", "Pad007")
body2.addObject(pad8)
pad8.Profile = sketch13
pad8.setExpression("Length", "Params.pad8_length")

# Sketch on XY plane
sketch14 = doc.addObject("Sketcher::SketchObject", "Sketch013")
body2.addObject(sketch14)
sketch14.AttachmentSupport = (doc.getObject("XY_Plane001"), [""])
sketch14.MapMode = "FlatFace"
sketch14.addGeometry(Part.Circle(Vector(-23.5, 0, 0), Vector(0, 0, 1), 3.3), False)
sketch14.addGeometry(Part.Circle(Vector(0, -23.5, 0), Vector(0, 0, 1), 3.3), False)
sketch14.addGeometry(Part.Circle(Vector(0, 23.5, 0), Vector(0, 0, 1), 3.3), False)
sketch14.addGeometry(Part.Circle(Vector(23.5, 0, 0), Vector(0, 0, 1), 3.3), False)
sketch14.addConstraint(Sketcher.Constraint("Equal", 0, 1))
sketch14.addConstraint(Sketcher.Constraint("Equal", 1, 2))
sketch14.addConstraint(Sketcher.Constraint("Equal", 2, 3))
sketch14.addConstraint(Sketcher.Constraint("Symmetric", 1, 3, 2, 3, -1, 1))
sketch14.addConstraint(Sketcher.Constraint("Symmetric", 0, 3, 3, 3, -1, 1))
sketch14.addConstraint(Sketcher.Constraint("PointOnObject", 0, 3, -1))
sketch14.addConstraint(Sketcher.Constraint("PointOnObject", 1, 3, -2))
sketch14.addConstraint(Sketcher.Constraint("Diameter", 0, Q("6.6 mm")))
sketch14.addConstraint(Sketcher.Constraint("DistanceY", 1, 3, 2, 3, Q("47 mm")))
sketch14.addConstraint(Sketcher.Constraint("DistanceX", 0, 3, 3, 3, Q("47 mm")))
sketch14.setExpression("Constraints[7]", "Params.sketch14_diameter")
pocket4 = doc.addObject("PartDesign::Pocket", "Pocket003")
body2.addObject(pocket4)
pocket4.Profile = sketch14
pocket4.setExpression("Length", "Params.pocket4_length")

# Sketch on an angled plane
sketch15 = doc.addObject("Sketcher::SketchObject", "Sketch014")
body2.addObject(sketch15)
sketch15.Placement = App.Placement(Vector(0, 0, 0), App.Rotation(Vector(0, 0, -1), Vector(0.707106781, 0.707106781, 0), Vector(0.707106781, -0.707106781, 0), "ZXY"))
sketch15.addGeometry(Part.Circle(Vector(2.9, 0, 0), Vector(0, 0, 1), 1.5), False)
sketch15.addConstraint(Sketcher.Constraint("PointOnObject", 0, 3, -1))
sketch15.addConstraint(Sketcher.Constraint("Diameter", 0, Q("3 mm")))
sketch15.addConstraint(Sketcher.Constraint("DistanceX", -1, 1, 0, 3, Q("2.94 mm")))
sketch15.setExpression("Constraints[1]", "Params.sketch15_diameter")
pocket5 = doc.addObject("PartDesign::Pocket", "Pocket004")
body2.addObject(pocket5)
pocket5.Profile = sketch15
pocket5.setExpression("Length", "Params.pocket5_length")
pocket5.Midplane = True

# Sketch on XY plane
sketch16 = doc.addObject("Sketcher::SketchObject", "Sketch015")
body2.addObject(sketch16)
sketch16.AttachmentSupport = (doc.getObject("XY_Plane001"), [""])
sketch16.MapMode = "FlatFace"
sketch16.AttachmentOffset = App.Placement(Vector(0, 0, -5.5), App.Rotation())
sketch16.addGeometry(Part.LineSegment(Vector(-8, -13, 0), Vector(13, 8, 0)), False)
sketch16.addGeometry(Part.ArcOfCircle(Part.Circle(Vector(0, 0, 0), Vector(0, 0, 1), 15), math.radians(31), math.radians(59)), False)
sketch16.addGeometry(Part.LineSegment(Vector(8, 13, 0), Vector(-13, -8, 0)), False)
sketch16.addGeometry(Part.ArcOfCircle(Part.Circle(Vector(0, 0, 0), Vector(0, 0, 1), 15), math.radians(-149), math.radians(-121)), False)
sketch16.addConstraint(Sketcher.Constraint("Coincident", 0, 2, 1, 1))
sketch16.addConstraint(Sketcher.Constraint("Coincident", 1, 2, 2, 1))
sketch16.addConstraint(Sketcher.Constraint("Coincident", 2, 2, 3, 1))
sketch16.addConstraint(Sketcher.Constraint("Coincident", 3, 2, 0, 1))
sketch16.addConstraint(Sketcher.Constraint("Coincident", 1, 3, -1, 1))
sketch16.addConstraint(Sketcher.Constraint("Coincident", 3, 3, -1, 1))
sketch16.addConstraint(Sketcher.Constraint("Equal", 1, 3))
sketch16.addConstraint(Sketcher.Constraint("Parallel", 0, 2))
sketch16.addConstraint(Sketcher.Constraint("Equal", 0, 2))
sketch16.addConstraint(Sketcher.Constraint("Radius", 1, Q("14.9 mm")))
sketch16.addConstraint(Sketcher.Constraint("Angle", 0, Q("45 deg")))
sketch16.addConstraint(Sketcher.Constraint("DistanceY", -1, 1, 0, 2, Q("7.76622 mm")))
sketch16.setExpression("Constraints[9]", "Params.sketch16_radius")
pocket6 = doc.addObject("PartDesign::Pocket", "Pocket005")
body2.addObject(pocket6)
pocket6.Profile = sketch16
pocket6.setExpression("Length", "Params.pocket6_length")

doc.recompute()
